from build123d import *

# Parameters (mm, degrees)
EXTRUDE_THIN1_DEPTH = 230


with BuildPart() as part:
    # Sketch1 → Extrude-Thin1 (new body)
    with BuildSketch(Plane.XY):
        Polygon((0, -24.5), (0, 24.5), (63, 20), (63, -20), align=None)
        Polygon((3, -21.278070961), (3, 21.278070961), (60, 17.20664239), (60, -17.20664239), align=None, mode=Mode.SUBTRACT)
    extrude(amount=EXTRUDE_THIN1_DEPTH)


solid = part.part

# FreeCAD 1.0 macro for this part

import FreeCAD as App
import Part
import Sketcher
from FreeCAD import Vector

doc = App.newDocument("Part")
body = doc.addObject("PartDesign::Body", "Body")

# Sketch on XY plane
sketch1 = body.newObject("Sketcher::SketchObject", "Sketch")
sketch1.AttachmentSupport = (doc.getObject("XY_Plane"), [""])
sketch1.MapMode = "FlatFace"
sketch1.addGeometry([
    Part.LineSegment(Vector(0, 24.5, 0), Vector(0, -24.5, 0)),  # 0
    Part.LineSegment(Vector(0, -24.5, 0), Vector(63, -20, 0)),  # 1
    Part.LineSegment(Vector(63, -20, 0), Vector(63, 20, 0)),  # 2
    Part.LineSegment(Vector(63, 20, 0), Vector(0, 24.5, 0)),  # 3
    Part.LineSegment(Vector(3, -21.278071, 0), Vector(3, 21.278071, 0)),  # 4
    Part.LineSegment(Vector(3, 21.278071, 0), Vector(60, 17.206642, 0)),  # 5
    Part.LineSegment(Vector(60, 17.206642, 0), Vector(60, -17.206642, 0)),  # 6
    Part.LineSegment(Vector(60, -17.206642, 0), Vector(3, -21.278071, 0)),  # 7
], False)
sketch1.addConstraint([
    Sketcher.Constraint("Coincident", 0, 2, 1, 1),
    Sketcher.Constraint("Coincident", 1, 2, 2, 1),
    Sketcher.Constraint("Coincident", 2, 2, 3, 1),
    Sketcher.Constraint("Coincident", 3, 2, 0, 1),
    Sketcher.Constraint("Coincident", 4, 2, 5, 1),
    Sketcher.Constraint("Coincident", 5, 2, 6, 1),
    Sketcher.Constraint("Coincident", 6, 2, 7, 1),
    Sketcher.Constraint("Coincident", 7, 2, 4, 1),
    Sketcher.Constraint("Vertical", 0),
    Sketcher.Constraint("Vertical", 2),
    Sketcher.Constraint("Vertical", 4),
    Sketcher.Constraint("Vertical", 6),
    Sketcher.Constraint("Symmetric", 0, 2, 3, 2, -1, 1),
    Sketcher.Constraint("Parallel", 3, 5),
    Sketcher.Constraint("Parallel", 1, 7),
    Sketcher.Constraint("Equal", 1, 3),
    Sketcher.Constraint("DistanceY", 0, 2, 0, 1, 49.0),
    Sketcher.Constraint("DistanceY", 2, 1, 2, 2, 40.0),
    Sketcher.Constraint("DistanceX", -1, 1, 1, 2, 63.0),
    Sketcher.Constraint("DistanceX", -1, 1, 4, 2, 3.0),
    Sketcher.Constraint("DistanceX", -1, 1, 5, 2, 60.0),
    Sketcher.Constraint("DistanceY", 4, 1, 4, 2, 42.556142),
    Sketcher.Constraint("DistanceY", -1, 1, 4, 2, 21.278071),
])
pad1 = body.newObject("PartDesign::Pad", "Pad")
pad1.Profile = sketch1
pad1.Length = 230

doc.recompute()
